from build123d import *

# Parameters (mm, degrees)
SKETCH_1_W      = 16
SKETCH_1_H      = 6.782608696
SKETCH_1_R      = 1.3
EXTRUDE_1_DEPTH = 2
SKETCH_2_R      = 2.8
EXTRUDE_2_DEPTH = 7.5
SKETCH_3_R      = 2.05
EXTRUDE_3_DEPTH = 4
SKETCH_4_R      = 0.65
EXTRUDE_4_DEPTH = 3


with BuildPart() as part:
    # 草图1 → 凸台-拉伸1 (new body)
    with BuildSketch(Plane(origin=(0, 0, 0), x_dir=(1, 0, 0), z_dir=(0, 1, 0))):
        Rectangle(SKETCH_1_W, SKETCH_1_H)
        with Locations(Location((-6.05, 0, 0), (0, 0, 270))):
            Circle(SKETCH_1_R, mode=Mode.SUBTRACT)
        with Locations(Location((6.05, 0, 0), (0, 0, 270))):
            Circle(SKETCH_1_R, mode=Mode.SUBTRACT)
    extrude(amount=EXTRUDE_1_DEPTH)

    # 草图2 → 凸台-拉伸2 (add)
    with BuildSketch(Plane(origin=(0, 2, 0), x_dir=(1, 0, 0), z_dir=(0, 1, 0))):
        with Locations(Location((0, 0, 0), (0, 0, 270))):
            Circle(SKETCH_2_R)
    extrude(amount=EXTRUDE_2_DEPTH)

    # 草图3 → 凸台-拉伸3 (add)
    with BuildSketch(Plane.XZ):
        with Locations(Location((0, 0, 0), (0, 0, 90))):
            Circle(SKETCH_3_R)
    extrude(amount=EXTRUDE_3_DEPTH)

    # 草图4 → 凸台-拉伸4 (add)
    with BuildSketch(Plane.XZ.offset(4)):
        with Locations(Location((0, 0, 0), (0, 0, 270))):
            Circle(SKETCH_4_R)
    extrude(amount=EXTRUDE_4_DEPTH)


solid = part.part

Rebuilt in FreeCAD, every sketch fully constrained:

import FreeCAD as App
import Part
import Sketcher

V = App.Vector
Q = App.Units.Quantity


def add_polygon(sketch, points):
    """Adds a closed chain of lines whose ends are joined by coincident constraints."""
    first, n = sketch.GeometryCount, len(points)
    for a, b in zip(points, points[1:] + points[:1]):
        sketch.addGeometry(Part.LineSegment(App.Vector(*a, 0), App.Vector(*b, 0)), False)
    for i in range(n):
        sketch.addConstraint(Sketcher.Constraint("Coincident", first + i, 2, first + (i + 1) % n, 1))

doc = App.newDocument("Part")
body = doc.addObject("PartDesign::Body", "Body")

# Sketch on XZ plane
sketch1 = doc.addObject("Sketcher::SketchObject", "Sketch")
body.addObject(sketch1)
sketch1.AttachmentSupport = (doc.XZ_Plane, [""])
sketch1.MapMode = "FlatFace"
add_polygon(sketch1, [(-8, -3.4), (-8, 3.4), (8, 3.4), (8, -3.4)])  # lines 0-3
sketch1.addGeometry(Part.Circle(V(-6, 0, 0), V(0, 0, 1), 1.3), False)  # 4
sketch1.addGeometry(Part.Circle(V(6, 0, 0), V(0, 0, 1), 1.3), False)  # 5
sketch1.addConstraint(Sketcher.Constraint("Vertical", 0))
sketch1.addConstraint(Sketcher.Constraint("Horizontal", 1))
sketch1.addConstraint(Sketcher.Constraint("Vertical", 2))
sketch1.addConstraint(Sketcher.Constraint("Horizontal", 3))
sketch1.addConstraint(Sketcher.Constraint("Equal", 4, 5))
sketch1.addConstraint(Sketcher.Constraint("Symmetric", 4, 3, 5, 3, -1, 1))
sketch1.addConstraint(Sketcher.Constraint("Symmetric", 0, 2, 2, 2, -1, 1))
sketch1.addConstraint(Sketcher.Constraint("PointOnObject", 4, 3, -1))
sketch1.addConstraint(Sketcher.Constraint("Diameter", 4, Q("2.6 mm")))
sketch1.addConstraint(Sketcher.Constraint("DistanceX", 1, 1, 1, 2, Q("16 mm")))
sketch1.addConstraint(Sketcher.Constraint("DistanceX", 4, 3, 5, 3, Q("12.1 mm")))
sketch1.addConstraint(Sketcher.Constraint("DistanceY", 0, 1, 0, 2, Q("6.782609 mm")))
pad1 = doc.addObject("PartDesign::Pad", "Pad")
body.addObject(pad1)
pad1.Profile = sketch1
pad1.Length = 2
pad1.Reversed = True

# Sketch on XZ plane
sketch2 = doc.addObject("Sketcher::SketchObject", "Sketch001")
body.addObject(sketch2)
sketch2.AttachmentSupport = (doc.XZ_Plane, [""])
sketch2.MapMode = "FlatFace"
sketch2.AttachmentOffset = App.Placement(V(0, 0, -2), App.Rotation())
sketch2.addGeometry(Part.Circle(V(0, 0, 0), V(0, 0, 1), 2.8), False)
sketch2.addConstraint(Sketcher.Constraint("Coincident", 0, 3, -1, 1))
sketch2.addConstraint(Sketcher.Constraint("Diameter", 0, Q("5.6 mm")))
pad2 = doc.addObject("PartDesign::Pad", "Pad001")
body.addObject(pad2)
pad2.Profile = sketch2
pad2.Length = 7.5
pad2.Reversed = True

# Sketch on XZ plane
sketch3 = doc.addObject("Sketcher::SketchObject", "Sketch002")
body.addObject(sketch3)
sketch3.AttachmentSupport = (doc.XZ_Plane, [""])
sketch3.MapMode = "FlatFace"
sketch3.addGeometry(Part.Circle(V(0, 0, 0), V(0, 0, 1), 2), False)
sketch3.addConstraint(Sketcher.Constraint("Coincident", 0, 3, -1, 1))
sketch3.addConstraint(Sketcher.Constraint("Diameter", 0, Q("4.1 mm")))
pad3 = doc.addObject("PartDesign::Pad", "Pad002")
body.addObject(pad3)
pad3.Profile = sketch3
pad3.Length = 4

# Sketch on XZ plane
sketch4 = doc.addObject("Sketcher::SketchObject", "Sketch003")
body.addObject(sketch4)
sketch4.AttachmentSupport = (doc.XZ_Plane, [""])
sketch4.MapMode = "FlatFace"
sketch4.AttachmentOffset = App.Placement(V(0, 0, 4), App.Rotation())
sketch4.addGeometry(Part.Circle(V(0, 0, 0), V(0, 0, 1), 0.7), False)
sketch4.addConstraint(Sketcher.Constraint("Coincident", 0, 3, -1, 1))
sketch4.addConstraint(Sketcher.Constraint("Diameter", 0, Q("1.3 mm")))
pad4 = doc.addObject("PartDesign::Pad", "Pad003")
body.addObject(pad4)
pad4.Profile = sketch4
pad4.Length = 3

doc.recompute()
